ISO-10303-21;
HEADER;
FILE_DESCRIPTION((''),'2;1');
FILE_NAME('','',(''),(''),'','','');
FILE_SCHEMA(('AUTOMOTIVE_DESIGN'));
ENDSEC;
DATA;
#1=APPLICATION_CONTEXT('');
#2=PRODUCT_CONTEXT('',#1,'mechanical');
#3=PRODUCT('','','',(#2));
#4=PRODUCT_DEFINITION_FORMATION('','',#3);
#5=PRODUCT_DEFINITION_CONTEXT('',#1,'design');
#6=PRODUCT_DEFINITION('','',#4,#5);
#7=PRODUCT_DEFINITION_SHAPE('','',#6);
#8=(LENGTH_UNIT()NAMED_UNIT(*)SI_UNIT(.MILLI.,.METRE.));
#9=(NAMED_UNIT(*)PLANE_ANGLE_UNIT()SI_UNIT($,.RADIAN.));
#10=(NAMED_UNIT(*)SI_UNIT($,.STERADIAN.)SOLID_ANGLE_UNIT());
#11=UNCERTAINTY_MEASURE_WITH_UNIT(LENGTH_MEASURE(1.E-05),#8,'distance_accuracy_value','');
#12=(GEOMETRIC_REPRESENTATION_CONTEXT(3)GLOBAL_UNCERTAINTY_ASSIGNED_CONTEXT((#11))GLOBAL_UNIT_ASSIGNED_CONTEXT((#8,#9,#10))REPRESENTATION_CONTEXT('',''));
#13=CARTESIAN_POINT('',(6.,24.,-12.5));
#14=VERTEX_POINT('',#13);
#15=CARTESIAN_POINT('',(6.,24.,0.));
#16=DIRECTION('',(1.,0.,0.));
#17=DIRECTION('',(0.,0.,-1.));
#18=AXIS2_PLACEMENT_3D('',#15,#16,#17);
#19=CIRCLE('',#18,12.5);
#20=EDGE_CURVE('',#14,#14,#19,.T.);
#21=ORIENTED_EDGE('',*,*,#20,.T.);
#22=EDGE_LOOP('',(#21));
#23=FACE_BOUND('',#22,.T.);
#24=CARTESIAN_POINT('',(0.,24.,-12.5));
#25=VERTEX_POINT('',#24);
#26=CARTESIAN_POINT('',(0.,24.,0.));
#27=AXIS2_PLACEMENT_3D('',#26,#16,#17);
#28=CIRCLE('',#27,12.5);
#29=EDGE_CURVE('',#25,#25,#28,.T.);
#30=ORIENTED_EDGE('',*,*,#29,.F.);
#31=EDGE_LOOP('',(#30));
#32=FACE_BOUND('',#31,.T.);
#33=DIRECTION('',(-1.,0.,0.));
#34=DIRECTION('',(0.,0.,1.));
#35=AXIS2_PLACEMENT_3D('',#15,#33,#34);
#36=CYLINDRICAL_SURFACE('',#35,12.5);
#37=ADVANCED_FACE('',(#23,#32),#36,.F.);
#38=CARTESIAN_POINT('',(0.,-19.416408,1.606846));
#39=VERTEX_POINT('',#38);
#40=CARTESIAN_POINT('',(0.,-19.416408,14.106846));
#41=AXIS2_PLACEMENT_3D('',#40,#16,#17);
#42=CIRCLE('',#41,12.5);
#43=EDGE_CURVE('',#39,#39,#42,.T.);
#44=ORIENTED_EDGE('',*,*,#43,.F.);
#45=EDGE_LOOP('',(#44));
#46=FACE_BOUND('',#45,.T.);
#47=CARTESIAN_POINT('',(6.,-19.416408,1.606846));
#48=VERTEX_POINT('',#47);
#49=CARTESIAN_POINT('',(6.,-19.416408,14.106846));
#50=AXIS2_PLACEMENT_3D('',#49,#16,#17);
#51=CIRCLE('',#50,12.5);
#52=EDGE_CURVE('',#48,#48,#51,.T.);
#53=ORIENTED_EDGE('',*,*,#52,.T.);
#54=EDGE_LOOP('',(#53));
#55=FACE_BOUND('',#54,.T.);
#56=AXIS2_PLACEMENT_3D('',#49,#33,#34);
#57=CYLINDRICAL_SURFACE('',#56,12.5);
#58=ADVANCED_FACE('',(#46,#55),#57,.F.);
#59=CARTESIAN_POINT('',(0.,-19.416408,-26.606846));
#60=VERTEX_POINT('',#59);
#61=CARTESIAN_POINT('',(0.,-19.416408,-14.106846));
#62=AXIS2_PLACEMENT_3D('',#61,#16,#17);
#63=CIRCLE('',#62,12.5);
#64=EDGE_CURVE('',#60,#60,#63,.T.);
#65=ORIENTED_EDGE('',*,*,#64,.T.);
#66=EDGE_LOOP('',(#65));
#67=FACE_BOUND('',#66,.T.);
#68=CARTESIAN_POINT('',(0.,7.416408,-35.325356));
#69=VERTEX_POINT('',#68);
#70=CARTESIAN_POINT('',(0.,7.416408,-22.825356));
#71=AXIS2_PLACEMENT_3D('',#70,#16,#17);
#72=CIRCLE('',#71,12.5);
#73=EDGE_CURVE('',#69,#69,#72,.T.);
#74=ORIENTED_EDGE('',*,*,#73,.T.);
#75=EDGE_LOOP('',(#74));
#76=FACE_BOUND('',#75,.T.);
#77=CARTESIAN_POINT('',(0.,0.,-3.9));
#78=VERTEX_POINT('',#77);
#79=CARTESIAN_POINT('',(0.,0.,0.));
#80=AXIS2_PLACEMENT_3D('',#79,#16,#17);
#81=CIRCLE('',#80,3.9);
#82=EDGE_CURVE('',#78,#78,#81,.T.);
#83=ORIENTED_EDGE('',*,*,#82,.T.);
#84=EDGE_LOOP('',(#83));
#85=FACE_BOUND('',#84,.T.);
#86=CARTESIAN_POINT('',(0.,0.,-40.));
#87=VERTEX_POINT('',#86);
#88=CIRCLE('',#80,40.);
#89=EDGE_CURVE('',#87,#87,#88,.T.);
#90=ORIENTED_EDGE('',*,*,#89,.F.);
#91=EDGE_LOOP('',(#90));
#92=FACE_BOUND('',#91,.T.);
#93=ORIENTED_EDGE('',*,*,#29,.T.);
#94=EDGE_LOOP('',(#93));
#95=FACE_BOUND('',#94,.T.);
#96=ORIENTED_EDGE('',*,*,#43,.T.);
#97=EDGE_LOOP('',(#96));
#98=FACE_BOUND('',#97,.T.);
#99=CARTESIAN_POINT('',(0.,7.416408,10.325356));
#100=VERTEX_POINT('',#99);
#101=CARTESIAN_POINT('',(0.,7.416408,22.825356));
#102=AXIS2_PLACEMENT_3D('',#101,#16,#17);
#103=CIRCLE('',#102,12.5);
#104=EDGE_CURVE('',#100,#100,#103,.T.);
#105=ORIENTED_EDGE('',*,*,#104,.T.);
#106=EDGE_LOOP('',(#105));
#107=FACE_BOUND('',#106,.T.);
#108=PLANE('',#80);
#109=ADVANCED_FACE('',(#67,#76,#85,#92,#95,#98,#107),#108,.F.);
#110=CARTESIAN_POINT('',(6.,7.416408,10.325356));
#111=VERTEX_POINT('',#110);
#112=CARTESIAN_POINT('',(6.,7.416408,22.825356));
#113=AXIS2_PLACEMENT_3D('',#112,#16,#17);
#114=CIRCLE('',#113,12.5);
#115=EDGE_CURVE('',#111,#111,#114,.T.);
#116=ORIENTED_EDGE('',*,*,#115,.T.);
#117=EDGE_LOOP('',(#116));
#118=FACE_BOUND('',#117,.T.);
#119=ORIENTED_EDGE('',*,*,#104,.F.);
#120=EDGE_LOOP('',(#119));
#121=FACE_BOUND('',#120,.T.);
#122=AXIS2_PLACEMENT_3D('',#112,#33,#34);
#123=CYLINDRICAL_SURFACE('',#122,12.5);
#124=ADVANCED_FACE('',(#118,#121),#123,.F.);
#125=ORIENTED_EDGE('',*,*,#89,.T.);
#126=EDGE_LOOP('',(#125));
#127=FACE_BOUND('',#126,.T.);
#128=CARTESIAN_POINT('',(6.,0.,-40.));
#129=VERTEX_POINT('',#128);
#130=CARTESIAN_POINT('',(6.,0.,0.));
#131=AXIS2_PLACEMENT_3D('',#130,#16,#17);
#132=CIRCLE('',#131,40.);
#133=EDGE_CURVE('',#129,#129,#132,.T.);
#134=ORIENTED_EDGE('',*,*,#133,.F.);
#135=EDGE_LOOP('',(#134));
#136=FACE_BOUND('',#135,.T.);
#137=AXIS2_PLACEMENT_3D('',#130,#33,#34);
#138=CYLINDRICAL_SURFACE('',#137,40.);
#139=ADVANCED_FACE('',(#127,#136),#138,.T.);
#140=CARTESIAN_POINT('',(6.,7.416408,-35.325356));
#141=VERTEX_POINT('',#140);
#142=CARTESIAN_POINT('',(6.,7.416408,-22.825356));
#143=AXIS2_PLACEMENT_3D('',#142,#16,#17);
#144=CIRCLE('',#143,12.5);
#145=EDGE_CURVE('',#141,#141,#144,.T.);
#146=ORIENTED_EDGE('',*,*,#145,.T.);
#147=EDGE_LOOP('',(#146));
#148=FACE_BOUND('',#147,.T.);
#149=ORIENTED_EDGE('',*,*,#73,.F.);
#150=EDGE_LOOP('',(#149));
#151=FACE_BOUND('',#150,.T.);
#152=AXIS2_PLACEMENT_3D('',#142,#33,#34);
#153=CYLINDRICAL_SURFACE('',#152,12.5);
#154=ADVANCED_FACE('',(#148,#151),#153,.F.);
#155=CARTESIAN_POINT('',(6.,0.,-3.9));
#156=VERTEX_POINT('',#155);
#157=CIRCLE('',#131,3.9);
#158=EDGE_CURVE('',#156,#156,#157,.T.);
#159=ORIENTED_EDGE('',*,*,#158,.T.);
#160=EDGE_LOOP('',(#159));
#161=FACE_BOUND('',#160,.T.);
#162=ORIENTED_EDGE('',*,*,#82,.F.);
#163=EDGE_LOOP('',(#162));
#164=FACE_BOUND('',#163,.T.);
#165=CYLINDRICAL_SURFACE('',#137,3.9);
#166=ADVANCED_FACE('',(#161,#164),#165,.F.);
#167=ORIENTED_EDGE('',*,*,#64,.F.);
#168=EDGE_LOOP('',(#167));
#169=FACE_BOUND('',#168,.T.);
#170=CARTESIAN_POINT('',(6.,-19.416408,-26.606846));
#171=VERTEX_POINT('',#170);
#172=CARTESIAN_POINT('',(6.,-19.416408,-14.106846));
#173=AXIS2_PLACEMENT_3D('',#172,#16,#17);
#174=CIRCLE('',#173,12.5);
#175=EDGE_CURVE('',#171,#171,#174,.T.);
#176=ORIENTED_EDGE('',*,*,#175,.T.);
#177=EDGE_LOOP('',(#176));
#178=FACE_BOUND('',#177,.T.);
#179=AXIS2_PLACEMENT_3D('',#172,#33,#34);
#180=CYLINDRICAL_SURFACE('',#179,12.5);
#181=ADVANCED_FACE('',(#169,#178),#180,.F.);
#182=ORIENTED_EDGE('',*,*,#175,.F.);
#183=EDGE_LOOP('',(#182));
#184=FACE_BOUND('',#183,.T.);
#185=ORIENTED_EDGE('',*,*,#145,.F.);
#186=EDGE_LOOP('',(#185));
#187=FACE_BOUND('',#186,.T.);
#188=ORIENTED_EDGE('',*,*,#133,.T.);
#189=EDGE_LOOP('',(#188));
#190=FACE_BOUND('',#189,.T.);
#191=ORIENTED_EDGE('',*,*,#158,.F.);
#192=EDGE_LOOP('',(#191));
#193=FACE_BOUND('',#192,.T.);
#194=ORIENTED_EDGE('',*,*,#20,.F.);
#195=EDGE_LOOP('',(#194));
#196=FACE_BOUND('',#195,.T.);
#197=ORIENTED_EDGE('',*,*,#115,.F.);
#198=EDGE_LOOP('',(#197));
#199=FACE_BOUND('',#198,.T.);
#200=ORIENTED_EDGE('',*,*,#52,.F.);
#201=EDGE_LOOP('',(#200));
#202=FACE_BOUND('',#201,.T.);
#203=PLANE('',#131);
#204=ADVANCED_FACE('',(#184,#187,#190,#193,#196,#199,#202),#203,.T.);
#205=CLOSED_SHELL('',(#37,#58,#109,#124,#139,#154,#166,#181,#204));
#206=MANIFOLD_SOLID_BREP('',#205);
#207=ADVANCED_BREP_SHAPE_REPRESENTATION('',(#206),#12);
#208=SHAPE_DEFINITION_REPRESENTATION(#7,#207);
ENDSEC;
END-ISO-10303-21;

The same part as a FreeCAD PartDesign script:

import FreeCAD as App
import Part
import Sketcher

V = App.Vector

doc = App.newDocument("Part")
params = doc.addObject("Spreadsheet::Sheet", "Params")
for row, (alias, value) in enumerate([
    ("sketch1_diameter", "80 mm"),
    ("sketch1_diameter2", "25 mm"),
    ("sketch1_diameter3", "7.8 mm"),
    ("pad1_length", "6 mm"),
], start=1):
    params.set(f"A{row}", alias)
    params.set(f"B{row}", "=" + value)
    params.setAlias(f"B{row}", alias)

body = doc.addObject("PartDesign::Body", "Body")

sketch1 = body.newObject("Sketcher::SketchObject", "Sketch")
sketch1.AttachmentSupport = (doc.getObject("YZ_Plane"), [""])
sketch1.MapMode = "FlatFace"
sketch1.addGeometry([
    Part.Circle(V(0, 0, 0), V(0, 0, 1), 40),
    Part.Circle(V(-19.4, 14.1, 0), V(0, 0, 1), 12.5),
    Part.Circle(V(-19.4, -14.1, 0), V(0, 0, 1), 12.5),
    Part.Circle(V(0, 0, 0), V(0, 0, 1), 3.9),
    Part.Circle(V(7.4, 22.8, 0), V(0, 0, 1), 12.5),
    Part.Circle(V(7.4, -22.8, 0), V(0, 0, 1), 12.5),
    Part.Circle(V(24, 0, 0), V(0, 0, 1), 12.5),
], False)
sketch1.addConstraint([
    Sketcher.Constraint("Coincident", 0, 3, -1, 1),
    Sketcher.Constraint("Coincident", 3, 3, -1, 1),
    Sketcher.Constraint("Equal", 1, 2),
    Sketcher.Constraint("Equal", 2, 4),
    Sketcher.Constraint("Equal", 4, 5),
    Sketcher.Constraint("Equal", 5, 6),
    Sketcher.Constraint("Symmetric", 1, 3, 2, 3, -1),
    Sketcher.Constraint("Symmetric", 4, 3, 5, 3, -1),
    Sketcher.Constraint("PointOnObject", 6, 3, -1),
    Sketcher.Constraint("Diameter", 0, 80.0),
    Sketcher.Constraint("Diameter", 1, 25.0),
    Sketcher.Constraint("Diameter", 3, 7.8),
    Sketcher.Constraint("DistanceX", -1, 1, 6, 3, 24.0),
    Sketcher.Constraint("DistanceY", 1, 3, 4, 3, 8.71851),
    Sketcher.Constraint("DistanceX", 1, 3, -1, 1, 19.416408),
    Sketcher.Constraint("DistanceY", -1, 1, 1, 3, 14.106846),
    Sketcher.Constraint("DistanceX", -1, 1, 4, 3, 7.416408),
])
sketch1.setExpression("Constraints[9]", "Params.sketch1_diameter")
sketch1.setExpression("Constraints[10]", "Params.sketch1_diameter2")
sketch1.setExpression("Constraints[11]", "Params.sketch1_diameter3")
pad1 = body.newObject("PartDesign::Pad", "Pad")
pad1.Profile = sketch1
pad1.setExpression("Length", "Params.pad1_length")

doc.recompute()
